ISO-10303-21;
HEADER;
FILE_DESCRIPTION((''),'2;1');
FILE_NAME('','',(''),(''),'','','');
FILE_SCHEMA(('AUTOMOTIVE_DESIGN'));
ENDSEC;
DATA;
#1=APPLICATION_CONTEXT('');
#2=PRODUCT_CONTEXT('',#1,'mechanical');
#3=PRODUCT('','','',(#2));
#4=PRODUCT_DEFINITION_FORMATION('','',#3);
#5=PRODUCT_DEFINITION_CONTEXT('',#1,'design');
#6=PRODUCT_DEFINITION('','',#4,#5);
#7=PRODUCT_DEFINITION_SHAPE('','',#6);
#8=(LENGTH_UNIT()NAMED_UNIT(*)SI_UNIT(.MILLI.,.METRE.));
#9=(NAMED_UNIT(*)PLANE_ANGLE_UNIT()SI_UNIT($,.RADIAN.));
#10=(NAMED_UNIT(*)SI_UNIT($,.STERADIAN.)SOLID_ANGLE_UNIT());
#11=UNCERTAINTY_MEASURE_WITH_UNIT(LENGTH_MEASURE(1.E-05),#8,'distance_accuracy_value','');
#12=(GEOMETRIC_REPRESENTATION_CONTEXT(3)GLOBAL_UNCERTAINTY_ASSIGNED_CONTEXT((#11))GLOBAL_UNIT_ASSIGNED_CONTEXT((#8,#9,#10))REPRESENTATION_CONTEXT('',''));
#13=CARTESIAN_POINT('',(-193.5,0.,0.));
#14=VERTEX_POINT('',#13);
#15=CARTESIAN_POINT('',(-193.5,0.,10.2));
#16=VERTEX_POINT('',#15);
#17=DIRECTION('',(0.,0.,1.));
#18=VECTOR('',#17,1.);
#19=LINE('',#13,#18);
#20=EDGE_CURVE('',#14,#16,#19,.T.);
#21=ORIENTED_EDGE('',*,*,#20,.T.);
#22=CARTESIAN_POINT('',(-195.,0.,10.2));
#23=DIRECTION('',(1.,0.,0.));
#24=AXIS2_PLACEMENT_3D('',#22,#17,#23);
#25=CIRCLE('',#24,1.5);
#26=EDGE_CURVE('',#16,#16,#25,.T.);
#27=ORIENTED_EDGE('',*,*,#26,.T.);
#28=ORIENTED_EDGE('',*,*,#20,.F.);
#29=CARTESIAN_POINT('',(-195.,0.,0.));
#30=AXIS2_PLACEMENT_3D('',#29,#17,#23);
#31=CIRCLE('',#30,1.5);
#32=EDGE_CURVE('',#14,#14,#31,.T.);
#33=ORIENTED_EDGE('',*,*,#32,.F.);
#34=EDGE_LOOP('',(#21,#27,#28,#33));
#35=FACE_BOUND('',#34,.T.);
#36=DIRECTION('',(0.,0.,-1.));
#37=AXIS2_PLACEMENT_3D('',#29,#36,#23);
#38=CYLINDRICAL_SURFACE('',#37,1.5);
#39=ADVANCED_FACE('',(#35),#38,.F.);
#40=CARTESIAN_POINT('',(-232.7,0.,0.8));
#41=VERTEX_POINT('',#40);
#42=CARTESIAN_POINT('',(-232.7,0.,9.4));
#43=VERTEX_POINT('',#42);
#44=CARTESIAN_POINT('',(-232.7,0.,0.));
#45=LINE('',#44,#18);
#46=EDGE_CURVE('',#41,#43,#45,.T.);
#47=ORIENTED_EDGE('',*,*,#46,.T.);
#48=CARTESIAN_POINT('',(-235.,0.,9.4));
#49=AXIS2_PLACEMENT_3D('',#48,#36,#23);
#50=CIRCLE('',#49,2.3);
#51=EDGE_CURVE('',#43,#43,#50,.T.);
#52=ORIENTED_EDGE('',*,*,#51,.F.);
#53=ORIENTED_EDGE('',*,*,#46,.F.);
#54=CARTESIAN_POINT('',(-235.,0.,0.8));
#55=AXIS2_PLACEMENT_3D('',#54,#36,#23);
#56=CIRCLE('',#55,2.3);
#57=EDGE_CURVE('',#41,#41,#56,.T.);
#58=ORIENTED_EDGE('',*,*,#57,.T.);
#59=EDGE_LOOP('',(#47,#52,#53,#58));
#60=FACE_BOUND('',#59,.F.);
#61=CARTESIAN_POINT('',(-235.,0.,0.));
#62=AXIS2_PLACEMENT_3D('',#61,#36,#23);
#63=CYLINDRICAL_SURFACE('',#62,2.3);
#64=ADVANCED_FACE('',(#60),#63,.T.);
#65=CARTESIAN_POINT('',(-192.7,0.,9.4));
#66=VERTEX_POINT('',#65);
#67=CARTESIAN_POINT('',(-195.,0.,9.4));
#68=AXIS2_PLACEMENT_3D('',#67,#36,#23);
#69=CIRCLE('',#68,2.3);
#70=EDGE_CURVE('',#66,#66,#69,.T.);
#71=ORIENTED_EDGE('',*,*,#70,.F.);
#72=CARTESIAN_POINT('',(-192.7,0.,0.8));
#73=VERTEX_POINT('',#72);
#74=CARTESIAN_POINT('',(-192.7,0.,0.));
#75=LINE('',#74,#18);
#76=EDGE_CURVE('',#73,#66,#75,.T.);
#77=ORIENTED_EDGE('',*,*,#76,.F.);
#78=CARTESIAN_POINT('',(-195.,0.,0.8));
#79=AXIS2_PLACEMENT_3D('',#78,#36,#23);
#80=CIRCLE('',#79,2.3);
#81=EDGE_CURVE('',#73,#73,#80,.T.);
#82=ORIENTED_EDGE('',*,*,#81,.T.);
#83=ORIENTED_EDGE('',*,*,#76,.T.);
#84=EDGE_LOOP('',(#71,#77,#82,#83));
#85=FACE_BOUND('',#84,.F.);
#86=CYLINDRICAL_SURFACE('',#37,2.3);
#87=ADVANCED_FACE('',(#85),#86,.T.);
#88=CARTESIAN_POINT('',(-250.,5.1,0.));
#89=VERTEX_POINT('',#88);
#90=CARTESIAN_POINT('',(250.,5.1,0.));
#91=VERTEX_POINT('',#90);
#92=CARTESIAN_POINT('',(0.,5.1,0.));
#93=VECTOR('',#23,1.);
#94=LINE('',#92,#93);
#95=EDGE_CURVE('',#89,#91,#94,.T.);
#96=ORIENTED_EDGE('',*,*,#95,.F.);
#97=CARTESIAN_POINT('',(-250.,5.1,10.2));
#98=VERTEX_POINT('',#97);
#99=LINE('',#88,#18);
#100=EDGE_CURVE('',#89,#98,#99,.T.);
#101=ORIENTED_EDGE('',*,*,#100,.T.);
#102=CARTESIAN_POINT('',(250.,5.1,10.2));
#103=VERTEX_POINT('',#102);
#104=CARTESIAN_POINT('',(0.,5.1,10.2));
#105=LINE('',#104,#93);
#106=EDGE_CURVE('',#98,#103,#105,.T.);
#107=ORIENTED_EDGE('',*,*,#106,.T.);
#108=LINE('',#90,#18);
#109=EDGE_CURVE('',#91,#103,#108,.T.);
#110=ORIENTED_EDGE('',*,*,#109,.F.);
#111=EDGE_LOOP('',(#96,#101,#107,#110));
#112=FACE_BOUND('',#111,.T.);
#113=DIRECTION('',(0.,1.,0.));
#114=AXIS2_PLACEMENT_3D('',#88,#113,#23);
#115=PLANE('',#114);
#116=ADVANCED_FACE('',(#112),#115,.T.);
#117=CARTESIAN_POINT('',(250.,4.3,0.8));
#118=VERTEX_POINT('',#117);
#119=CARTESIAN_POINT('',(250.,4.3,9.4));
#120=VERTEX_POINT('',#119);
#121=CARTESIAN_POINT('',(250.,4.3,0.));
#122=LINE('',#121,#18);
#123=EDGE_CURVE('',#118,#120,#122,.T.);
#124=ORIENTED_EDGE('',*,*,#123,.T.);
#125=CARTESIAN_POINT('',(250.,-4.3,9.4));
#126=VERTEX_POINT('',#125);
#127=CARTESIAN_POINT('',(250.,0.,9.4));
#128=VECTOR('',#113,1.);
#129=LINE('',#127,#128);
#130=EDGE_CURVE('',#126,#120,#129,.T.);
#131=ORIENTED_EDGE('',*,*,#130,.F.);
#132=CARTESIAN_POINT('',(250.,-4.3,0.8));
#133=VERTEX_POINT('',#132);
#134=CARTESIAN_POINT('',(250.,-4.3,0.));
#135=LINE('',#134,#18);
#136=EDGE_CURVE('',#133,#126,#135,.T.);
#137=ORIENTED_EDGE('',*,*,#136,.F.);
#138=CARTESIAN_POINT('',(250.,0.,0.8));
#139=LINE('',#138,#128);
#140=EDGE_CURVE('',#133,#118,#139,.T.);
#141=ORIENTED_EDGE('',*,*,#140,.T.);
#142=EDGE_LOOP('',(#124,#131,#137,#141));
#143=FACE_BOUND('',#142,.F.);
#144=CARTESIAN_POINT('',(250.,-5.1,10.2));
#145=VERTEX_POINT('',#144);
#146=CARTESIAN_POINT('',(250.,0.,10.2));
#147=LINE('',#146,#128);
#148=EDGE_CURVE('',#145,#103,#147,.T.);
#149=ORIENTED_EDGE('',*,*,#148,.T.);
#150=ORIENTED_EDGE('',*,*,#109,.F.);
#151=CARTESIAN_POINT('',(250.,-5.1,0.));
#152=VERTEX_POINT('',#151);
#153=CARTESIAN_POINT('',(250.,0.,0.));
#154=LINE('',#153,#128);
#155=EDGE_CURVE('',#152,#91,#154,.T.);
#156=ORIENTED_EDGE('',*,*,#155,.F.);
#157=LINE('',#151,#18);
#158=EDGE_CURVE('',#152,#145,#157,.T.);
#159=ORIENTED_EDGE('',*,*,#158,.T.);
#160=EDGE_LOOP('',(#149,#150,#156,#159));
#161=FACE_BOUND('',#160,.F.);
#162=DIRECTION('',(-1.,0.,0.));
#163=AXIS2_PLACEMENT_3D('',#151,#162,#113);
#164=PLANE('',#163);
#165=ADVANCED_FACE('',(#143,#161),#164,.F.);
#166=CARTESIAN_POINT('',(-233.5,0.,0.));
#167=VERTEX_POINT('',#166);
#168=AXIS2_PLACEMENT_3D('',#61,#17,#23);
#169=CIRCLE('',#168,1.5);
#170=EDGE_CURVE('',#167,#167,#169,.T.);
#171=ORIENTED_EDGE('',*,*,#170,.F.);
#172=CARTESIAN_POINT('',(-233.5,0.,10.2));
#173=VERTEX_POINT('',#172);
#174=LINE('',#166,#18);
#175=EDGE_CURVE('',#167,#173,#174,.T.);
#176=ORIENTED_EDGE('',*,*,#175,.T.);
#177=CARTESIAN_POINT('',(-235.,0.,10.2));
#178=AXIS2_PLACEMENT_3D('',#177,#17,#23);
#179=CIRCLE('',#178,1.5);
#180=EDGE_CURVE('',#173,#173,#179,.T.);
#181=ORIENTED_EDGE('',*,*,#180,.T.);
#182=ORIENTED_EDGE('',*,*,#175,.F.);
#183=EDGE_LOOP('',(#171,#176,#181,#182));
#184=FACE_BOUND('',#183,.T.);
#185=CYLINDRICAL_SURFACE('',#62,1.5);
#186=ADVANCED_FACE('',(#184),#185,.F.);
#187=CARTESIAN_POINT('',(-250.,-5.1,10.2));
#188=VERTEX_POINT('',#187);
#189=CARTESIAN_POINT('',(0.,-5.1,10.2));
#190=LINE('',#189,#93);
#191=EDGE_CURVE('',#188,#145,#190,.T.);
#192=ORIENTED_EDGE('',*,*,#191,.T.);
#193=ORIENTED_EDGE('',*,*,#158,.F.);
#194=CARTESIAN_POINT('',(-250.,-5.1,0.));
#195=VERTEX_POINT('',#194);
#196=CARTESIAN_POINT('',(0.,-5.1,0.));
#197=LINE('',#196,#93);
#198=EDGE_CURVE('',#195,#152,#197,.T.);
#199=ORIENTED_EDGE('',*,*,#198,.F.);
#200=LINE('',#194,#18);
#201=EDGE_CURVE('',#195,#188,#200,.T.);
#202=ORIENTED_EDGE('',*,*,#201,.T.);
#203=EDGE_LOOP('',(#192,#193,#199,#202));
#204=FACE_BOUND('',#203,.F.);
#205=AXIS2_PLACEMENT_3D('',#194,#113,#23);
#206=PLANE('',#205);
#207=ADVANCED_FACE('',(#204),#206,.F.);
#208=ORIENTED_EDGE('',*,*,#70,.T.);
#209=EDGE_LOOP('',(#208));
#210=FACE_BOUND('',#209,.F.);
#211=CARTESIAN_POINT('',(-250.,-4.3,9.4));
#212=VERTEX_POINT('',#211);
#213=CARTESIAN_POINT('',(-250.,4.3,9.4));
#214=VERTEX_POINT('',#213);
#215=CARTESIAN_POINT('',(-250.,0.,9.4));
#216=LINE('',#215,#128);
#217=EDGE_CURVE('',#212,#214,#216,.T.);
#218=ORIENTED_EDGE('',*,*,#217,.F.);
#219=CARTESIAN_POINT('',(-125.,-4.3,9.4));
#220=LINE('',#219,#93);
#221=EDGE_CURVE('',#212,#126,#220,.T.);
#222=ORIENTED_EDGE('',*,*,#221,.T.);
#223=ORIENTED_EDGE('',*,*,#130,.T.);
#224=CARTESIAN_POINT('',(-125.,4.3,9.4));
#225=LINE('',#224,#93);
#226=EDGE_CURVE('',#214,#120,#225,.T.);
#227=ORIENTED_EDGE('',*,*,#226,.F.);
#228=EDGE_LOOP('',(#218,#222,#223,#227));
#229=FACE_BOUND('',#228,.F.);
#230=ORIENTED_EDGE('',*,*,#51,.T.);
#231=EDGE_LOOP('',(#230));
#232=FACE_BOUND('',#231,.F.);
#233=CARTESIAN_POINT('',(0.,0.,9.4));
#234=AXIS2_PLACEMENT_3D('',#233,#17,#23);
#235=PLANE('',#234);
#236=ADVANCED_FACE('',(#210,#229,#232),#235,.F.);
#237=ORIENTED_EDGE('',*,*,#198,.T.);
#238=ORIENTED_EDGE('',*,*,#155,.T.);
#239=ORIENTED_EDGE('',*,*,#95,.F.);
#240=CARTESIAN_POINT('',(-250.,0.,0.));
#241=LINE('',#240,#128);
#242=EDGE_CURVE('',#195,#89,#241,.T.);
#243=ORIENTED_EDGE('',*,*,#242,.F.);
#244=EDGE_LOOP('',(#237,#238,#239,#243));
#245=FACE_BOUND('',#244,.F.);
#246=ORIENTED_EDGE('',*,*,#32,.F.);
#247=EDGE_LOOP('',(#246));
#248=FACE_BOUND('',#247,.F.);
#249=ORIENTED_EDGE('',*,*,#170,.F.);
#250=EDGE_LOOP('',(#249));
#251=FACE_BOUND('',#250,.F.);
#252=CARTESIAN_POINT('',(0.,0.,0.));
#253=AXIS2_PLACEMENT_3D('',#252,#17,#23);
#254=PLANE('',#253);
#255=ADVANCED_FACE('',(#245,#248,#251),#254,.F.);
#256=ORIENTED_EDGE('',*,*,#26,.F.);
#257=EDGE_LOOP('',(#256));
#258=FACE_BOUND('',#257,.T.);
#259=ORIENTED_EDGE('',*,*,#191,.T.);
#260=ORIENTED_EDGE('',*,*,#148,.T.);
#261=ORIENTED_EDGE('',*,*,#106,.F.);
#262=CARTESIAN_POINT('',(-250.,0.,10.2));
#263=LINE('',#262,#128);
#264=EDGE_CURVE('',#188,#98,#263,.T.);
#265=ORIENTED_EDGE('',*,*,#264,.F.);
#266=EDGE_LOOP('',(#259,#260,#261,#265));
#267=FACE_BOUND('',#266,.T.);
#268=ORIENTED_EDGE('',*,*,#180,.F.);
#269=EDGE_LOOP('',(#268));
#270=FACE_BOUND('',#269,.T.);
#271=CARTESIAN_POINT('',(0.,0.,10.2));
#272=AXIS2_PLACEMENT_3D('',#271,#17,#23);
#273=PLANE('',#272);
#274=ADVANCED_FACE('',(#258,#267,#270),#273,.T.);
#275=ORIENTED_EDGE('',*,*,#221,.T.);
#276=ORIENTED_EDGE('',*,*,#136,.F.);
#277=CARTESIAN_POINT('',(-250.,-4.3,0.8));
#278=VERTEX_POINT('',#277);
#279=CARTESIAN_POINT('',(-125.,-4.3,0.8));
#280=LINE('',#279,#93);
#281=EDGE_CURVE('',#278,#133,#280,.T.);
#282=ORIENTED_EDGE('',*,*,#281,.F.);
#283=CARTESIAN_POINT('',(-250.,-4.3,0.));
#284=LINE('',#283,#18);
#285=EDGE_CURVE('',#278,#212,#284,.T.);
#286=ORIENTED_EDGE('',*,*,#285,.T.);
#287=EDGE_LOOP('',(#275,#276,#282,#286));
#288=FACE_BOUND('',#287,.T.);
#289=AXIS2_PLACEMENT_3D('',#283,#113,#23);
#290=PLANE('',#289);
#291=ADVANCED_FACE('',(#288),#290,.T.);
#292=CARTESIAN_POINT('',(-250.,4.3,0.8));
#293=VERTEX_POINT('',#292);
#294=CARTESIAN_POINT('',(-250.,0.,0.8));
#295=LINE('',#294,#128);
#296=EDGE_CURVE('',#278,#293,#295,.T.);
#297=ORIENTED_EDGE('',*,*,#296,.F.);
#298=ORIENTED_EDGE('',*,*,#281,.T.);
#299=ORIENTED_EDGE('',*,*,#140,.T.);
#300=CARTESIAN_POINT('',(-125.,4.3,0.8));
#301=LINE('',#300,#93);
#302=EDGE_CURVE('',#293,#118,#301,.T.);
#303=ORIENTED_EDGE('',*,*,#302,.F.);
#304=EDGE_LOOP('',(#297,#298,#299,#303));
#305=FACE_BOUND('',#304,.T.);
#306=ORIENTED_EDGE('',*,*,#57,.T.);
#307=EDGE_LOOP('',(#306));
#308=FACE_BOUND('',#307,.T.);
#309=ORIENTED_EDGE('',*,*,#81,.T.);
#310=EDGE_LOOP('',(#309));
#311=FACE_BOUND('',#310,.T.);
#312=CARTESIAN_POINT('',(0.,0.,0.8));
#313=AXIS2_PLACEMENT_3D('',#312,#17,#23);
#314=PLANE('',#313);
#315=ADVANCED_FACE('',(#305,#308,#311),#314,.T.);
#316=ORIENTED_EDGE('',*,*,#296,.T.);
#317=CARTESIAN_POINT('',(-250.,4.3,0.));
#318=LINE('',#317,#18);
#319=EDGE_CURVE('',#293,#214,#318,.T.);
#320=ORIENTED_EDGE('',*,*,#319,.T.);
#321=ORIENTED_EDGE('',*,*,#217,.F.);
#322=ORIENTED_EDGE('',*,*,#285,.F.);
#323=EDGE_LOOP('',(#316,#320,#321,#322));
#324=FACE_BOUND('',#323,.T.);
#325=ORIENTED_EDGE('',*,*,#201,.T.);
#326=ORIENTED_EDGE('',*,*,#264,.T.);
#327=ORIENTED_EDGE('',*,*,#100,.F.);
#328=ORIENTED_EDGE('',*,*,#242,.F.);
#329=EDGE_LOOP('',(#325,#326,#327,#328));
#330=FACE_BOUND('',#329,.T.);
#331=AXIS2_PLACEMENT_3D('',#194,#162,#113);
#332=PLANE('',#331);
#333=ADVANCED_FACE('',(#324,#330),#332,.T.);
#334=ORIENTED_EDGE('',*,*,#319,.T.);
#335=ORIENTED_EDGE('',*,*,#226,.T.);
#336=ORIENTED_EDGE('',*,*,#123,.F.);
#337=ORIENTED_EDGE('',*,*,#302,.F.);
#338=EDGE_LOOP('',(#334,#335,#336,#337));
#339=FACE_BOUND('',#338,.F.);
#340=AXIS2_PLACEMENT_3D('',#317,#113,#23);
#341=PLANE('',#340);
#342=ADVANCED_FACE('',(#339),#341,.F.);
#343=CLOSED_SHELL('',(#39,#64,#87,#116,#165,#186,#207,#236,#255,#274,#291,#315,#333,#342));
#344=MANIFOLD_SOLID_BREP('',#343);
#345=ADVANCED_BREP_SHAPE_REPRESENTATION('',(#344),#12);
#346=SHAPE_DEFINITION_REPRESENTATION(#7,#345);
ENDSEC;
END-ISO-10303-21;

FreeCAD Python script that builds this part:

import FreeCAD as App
import Part
import Sketcher
Q = App.Units.Quantity


def faces_at(feature, points):
    """Names of the faces that lie closest to the given points."""
    faces = feature.Shape.Faces
    near = lambda p: min(range(len(faces)), key=lambda i: faces[i].distToShape(Part.Vertex(*p))[0])
    return sorted({f"Face{near(p) + 1}" for p in points})

doc = App.newDocument("Part")
body = doc.addObject("PartDesign::Body", "Body")

# Sketch on XY plane
sketch1 = body.newObject("Sketcher::SketchObject", "Sketch")
sketch1.AttachmentSupport = (doc.getObject("XY_Plane"), [""])
sketch1.MapMode = "FlatFace"
sketch1.addGeometry([
    Part.LineSegment(App.Vector(-250, 5.1, 0), App.Vector(-250, -5.1, 0)),  # 0
    Part.LineSegment(App.Vector(-250, -5.1, 0), App.Vector(250, -5.1, 0)),  # 1
    Part.LineSegment(App.Vector(250, -5.1, 0), App.Vector(250, 5.1, 0)),  # 2
    Part.LineSegment(App.Vector(250, 5.1, 0), App.Vector(-250, 5.1, 0)),  # 3
    Part.Circle(App.Vector(-235, 0, 0), App.Vector(0, 0, 1), 1.5),  # 4
    Part.Circle(App.Vector(-195, 0, 0), App.Vector(0, 0, 1), 1.5),  # 5
], False)
sketch1.addConstraint([
    Sketcher.Constraint("Coincident", 0, 2, 1, 1),
    Sketcher.Constraint("Coincident", 1, 2, 2, 1),
    Sketcher.Constraint("Coincident", 2, 2, 3, 1),
    Sketcher.Constraint("Coincident", 3, 2, 0, 1),
    Sketcher.Constraint("Vertical", 0),
    Sketcher.Constraint("Horizontal", 1),
    Sketcher.Constraint("Vertical", 2),
    Sketcher.Constraint("Horizontal", 3),
    Sketcher.Constraint("Equal", 4, 5),
    Sketcher.Constraint("Symmetric", 0, 2, 2, 2, -1, 1),
    Sketcher.Constraint("PointOnObject", 4, 3, -1),
    Sketcher.Constraint("PointOnObject", 5, 3, -1),
    Sketcher.Constraint("Diameter", 4, Q("3 mm")),
    Sketcher.Constraint("DistanceX", 1, 1, 1, 2, Q("500 mm")),
    Sketcher.Constraint("DistanceY", 0, 2, 0, 1, Q("10.2 mm")),
    Sketcher.Constraint("DistanceX", 4, 3, -1, 1, Q("235 mm")),
    Sketcher.Constraint("DistanceX", 5, 3, -1, 1, Q("195 mm")),
])
pad1 = body.newObject("PartDesign::Pad", "Pad")
pad1.Profile = sketch1
pad1.Length = 10.2
doc.recompute()

thickness = body.newObject("PartDesign::Thickness", "Thickness")
thickness.Base = (pad1, faces_at(pad1, [(250, 0, 5.1), (-250, 0, 5.1)]))
thickness.Value = 0.8
thickness.Reversed = True
thickness.Join = "Arc"

doc.recompute()
